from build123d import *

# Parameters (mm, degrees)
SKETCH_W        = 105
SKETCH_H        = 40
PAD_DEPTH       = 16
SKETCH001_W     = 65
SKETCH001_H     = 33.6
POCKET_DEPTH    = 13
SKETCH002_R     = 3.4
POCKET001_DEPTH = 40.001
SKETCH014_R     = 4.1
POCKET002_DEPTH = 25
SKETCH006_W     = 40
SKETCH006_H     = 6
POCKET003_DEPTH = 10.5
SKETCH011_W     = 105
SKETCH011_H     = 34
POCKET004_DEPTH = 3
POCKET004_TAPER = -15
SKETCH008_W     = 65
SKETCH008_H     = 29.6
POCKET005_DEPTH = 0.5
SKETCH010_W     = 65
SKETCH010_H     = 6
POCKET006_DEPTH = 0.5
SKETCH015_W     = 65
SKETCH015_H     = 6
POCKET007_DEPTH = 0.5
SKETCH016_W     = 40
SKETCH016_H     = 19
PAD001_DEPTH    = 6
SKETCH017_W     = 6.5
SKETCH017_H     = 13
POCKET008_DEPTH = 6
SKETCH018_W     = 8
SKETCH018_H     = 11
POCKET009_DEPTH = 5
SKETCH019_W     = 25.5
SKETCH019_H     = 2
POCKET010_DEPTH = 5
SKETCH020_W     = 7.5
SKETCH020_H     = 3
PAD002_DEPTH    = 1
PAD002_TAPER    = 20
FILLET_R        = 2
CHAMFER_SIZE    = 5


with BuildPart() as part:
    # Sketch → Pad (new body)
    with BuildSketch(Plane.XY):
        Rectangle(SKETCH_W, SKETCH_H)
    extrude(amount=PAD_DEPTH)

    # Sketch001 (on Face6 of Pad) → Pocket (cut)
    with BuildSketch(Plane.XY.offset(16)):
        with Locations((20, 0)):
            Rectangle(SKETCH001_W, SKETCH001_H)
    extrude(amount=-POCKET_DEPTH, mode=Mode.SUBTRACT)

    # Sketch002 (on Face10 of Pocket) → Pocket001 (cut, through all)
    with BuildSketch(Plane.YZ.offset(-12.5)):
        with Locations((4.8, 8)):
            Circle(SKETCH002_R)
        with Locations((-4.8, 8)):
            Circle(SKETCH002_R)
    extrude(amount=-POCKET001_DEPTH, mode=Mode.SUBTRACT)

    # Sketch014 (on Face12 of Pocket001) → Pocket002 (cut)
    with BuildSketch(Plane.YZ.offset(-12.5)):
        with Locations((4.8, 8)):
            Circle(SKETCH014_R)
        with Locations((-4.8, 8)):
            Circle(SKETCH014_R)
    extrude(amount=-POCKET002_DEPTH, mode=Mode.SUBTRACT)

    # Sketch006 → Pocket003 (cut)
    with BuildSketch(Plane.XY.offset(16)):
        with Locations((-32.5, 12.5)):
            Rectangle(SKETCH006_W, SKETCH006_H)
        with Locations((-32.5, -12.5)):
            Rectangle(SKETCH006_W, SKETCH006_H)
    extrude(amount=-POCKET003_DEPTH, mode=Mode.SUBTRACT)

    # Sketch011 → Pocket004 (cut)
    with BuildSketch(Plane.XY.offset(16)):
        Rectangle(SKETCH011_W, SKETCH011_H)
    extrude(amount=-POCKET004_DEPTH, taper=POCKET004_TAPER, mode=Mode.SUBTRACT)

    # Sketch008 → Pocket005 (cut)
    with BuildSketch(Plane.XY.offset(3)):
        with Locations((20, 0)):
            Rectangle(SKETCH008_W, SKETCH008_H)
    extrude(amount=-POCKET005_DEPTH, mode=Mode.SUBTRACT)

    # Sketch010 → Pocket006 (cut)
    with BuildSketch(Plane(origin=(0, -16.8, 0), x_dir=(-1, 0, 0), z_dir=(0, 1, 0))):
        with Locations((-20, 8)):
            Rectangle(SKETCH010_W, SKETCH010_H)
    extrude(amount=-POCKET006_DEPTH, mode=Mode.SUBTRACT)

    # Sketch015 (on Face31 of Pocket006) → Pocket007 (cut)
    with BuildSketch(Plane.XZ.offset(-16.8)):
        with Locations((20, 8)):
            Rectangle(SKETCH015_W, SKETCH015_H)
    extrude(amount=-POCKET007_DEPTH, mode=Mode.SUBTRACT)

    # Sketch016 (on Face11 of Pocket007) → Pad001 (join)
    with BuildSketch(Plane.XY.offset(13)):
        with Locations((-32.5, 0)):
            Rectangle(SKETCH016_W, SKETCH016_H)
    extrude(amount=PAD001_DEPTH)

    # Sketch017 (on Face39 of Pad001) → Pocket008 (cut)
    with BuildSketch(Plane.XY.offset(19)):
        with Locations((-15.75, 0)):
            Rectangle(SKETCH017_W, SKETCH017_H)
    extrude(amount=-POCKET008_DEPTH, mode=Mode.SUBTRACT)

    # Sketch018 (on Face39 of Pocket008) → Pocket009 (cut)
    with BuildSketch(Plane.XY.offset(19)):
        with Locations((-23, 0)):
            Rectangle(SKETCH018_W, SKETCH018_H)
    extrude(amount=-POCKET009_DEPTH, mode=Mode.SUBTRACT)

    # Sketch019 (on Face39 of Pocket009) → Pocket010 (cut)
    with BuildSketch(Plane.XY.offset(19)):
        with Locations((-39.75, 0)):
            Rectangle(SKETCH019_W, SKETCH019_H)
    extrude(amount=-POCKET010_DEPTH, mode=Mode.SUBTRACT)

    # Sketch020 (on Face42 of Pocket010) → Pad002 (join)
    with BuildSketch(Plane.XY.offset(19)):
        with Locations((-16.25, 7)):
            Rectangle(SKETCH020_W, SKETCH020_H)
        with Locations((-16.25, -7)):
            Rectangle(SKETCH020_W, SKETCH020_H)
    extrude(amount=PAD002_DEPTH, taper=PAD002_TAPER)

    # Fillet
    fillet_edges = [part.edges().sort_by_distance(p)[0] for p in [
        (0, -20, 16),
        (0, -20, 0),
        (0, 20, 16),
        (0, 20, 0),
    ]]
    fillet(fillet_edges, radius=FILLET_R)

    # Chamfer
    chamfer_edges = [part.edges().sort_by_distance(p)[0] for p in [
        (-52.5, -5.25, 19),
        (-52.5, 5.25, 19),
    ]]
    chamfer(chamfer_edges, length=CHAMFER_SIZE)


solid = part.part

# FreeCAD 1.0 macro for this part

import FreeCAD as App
import Part
import Sketcher


def edges_at(feature, points):
    """Names of the edges that pass closest to the given points."""
    edges = feature.Shape.Edges
    near = lambda p: min(range(len(edges)), key=lambda i: edges[i].distToShape(Part.Vertex(*p))[0])
    return sorted({f"Edge{near(p) + 1}" for p in points})

doc = App.newDocument("Part")
body = doc.addObject("PartDesign::Body", "Body")

# Sketch on XY plane
sketch1 = doc.addObject("Sketcher::SketchObject", "Sketch")
body.addObject(sketch1)
sketch1.AttachmentSupport = (doc.XY_Plane, [""])
sketch1.MapMode = "FlatFace"
sketch1.addGeometry(Part.LineSegment(App.Vector(-52.5, 20, 0), App.Vector(-52.5, -20, 0)), False)
sketch1.addGeometry(Part.LineSegment(App.Vector(-52.5, -20, 0), App.Vector(52.5, -20, 0)), False)
sketch1.addGeometry(Part.LineSegment(App.Vector(52.5, -20, 0), App.Vector(52.5, 20, 0)), False)
sketch1.addGeometry(Part.LineSegment(App.Vector(52.5, 20, 0), App.Vector(-52.5, 20, 0)), False)
sketch1.addConstraint(Sketcher.Constraint("Coincident", 0, 2, 1, 1))
sketch1.addConstraint(Sketcher.Constraint("Coincident", 1, 2, 2, 1))
sketch1.addConstraint(Sketcher.Constraint("Coincident", 2, 2, 3, 1))
sketch1.addConstraint(Sketcher.Constraint("Coincident", 3, 2, 0, 1))
sketch1.addConstraint(Sketcher.Constraint("Vertical", 0))
sketch1.addConstraint(Sketcher.Constraint("Horizontal", 1))
sketch1.addConstraint(Sketcher.Constraint("Vertical", 2))
sketch1.addConstraint(Sketcher.Constraint("Horizontal", 3))
sketch1.addConstraint(Sketcher.Constraint("Symmetric", 0, 2, 2, 2, -1, 1))
sketch1.addConstraint(Sketcher.Constraint("DistanceX", 1, 1, 1, 2, 105.0))
sketch1.addConstraint(Sketcher.Constraint("DistanceY", 0, 2, 0, 1, 40.0))
pad1 = doc.addObject("PartDesign::Pad", "Pad")
body.addObject(pad1)
pad1.Profile = sketch1
pad1.Length = 16

# Sketch on XY plane
sketch2 = doc.addObject("Sketcher::SketchObject", "Sketch001")
body.addObject(sketch2)
sketch2.AttachmentSupport = (doc.XY_Plane, [""])
sketch2.MapMode = "FlatFace"
sketch2.AttachmentOffset = App.Placement(App.Vector(0, 0, 16), App.Rotation())
sketch2.addGeometry(Part.LineSegment(App.Vector(-12.5, 16.8, 0), App.Vector(-12.5, -16.8, 0)), False)
sketch2.addGeometry(Part.LineSegment(App.Vector(-12.5, -16.8, 0), App.Vector(52.5, -16.8, 0)), False)
sketch2.addGeometry(Part.LineSegment(App.Vector(52.5, -16.8, 0), App.Vector(52.5, 16.8, 0)), False)
sketch2.addGeometry(Part.LineSegment(App.Vector(52.5, 16.8, 0), App.Vector(-12.5, 16.8, 0)), False)
sketch2.addConstraint(Sketcher.Constraint("Coincident", 0, 2, 1, 1))
sketch2.addConstraint(Sketcher.Constraint("Coincident", 1, 2, 2, 1))
sketch2.addConstraint(Sketcher.Constraint("Coincident", 2, 2, 3, 1))
sketch2.addConstraint(Sketcher.Constraint("Coincident", 3, 2, 0, 1))
sketch2.addConstraint(Sketcher.Constraint("Vertical", 0))
sketch2.addConstraint(Sketcher.Constraint("Horizontal", 1))
sketch2.addConstraint(Sketcher.Constraint("Vertical", 2))
sketch2.addConstraint(Sketcher.Constraint("Horizontal", 3))
sketch2.addConstraint(Sketcher.Constraint("DistanceX", 1, 1, 1, 2, 65.0))
sketch2.addConstraint(Sketcher.Constraint("DistanceY", 0, 2, 0, 1, 33.6))
sketch2.addConstraint(Sketcher.Constraint("DistanceX", 0, 2, -1, 1, 12.5))
sketch2.addConstraint(Sketcher.Constraint("DistanceY", 0, 2, -1, 1, 16.8))
pocket1 = doc.addObject("PartDesign::Pocket", "Pocket")
body.addObject(pocket1)
pocket1.Profile = sketch2
pocket1.Length = 13

# Sketch on YZ plane
sketch3 = doc.addObject("Sketcher::SketchObject", "Sketch002")
body.addObject(sketch3)
sketch3.AttachmentSupport = (doc.YZ_Plane, [""])
sketch3.MapMode = "FlatFace"
sketch3.AttachmentOffset = App.Placement(App.Vector(0, 0, -12.5), App.Rotation())
sketch3.addGeometry(Part.Circle(App.Vector(4.8, 8, 0), App.Vector(0, 0, 1), 3.4), False)
sketch3.addGeometry(Part.Circle(App.Vector(-4.8, 8, 0), App.Vector(0, 0, 1), 3.4), False)
sketch3.addConstraint(Sketcher.Constraint("Equal", 0, 1))
sketch3.addConstraint(Sketcher.Constraint("Symmetric", 0, 3, 1, 3, -2))
sketch3.addConstraint(Sketcher.Constraint("Diameter", 0, 6.8))
sketch3.addConstraint(Sketcher.Constraint("DistanceY", -1, 1, 0, 3, 8.0))
sketch3.addConstraint(Sketcher.Constraint("DistanceX", -1, 1, 0, 3, 4.8))
pocket2 = doc.addObject("PartDesign::Pocket", "Pocket001")
body.addObject(pocket2)
pocket2.Profile = sketch3
pocket2.Type = "ThroughAll"

# Sketch on YZ plane
sketch4 = doc.addObject("Sketcher::SketchObject", "Sketch003")
body.addObject(sketch4)
sketch4.AttachmentSupport = (doc.YZ_Plane, [""])
sketch4.MapMode = "FlatFace"
sketch4.AttachmentOffset = App.Placement(App.Vector(0, 0, -12.5), App.Rotation())
sketch4.addGeometry(Part.Circle(App.Vector(4.8, 8, 0), App.Vector(0, 0, 1), 4.1), False)
sketch4.addGeometry(Part.Circle(App.Vector(-4.8, 8, 0), App.Vector(0, 0, 1), 4.1), False)
sketch4.addConstraint(Sketcher.Constraint("Equal", 0, 1))
sketch4.addConstraint(Sketcher.Constraint("Symmetric", 0, 3, 1, 3, -2))
sketch4.addConstraint(Sketcher.Constraint("Diameter", 0, 8.2))
sketch4.addConstraint(Sketcher.Constraint("DistanceY", -1, 1, 0, 3, 8.0))
sketch4.addConstraint(Sketcher.Constraint("DistanceX", -1, 1, 0, 3, 4.8))
pocket3 = doc.addObject("PartDesign::Pocket", "Pocket002")
body.addObject(pocket3)
pocket3.Profile = sketch4
pocket3.Length = 25

# Sketch on XY plane
sketch5 = doc.addObject("Sketcher::SketchObject", "Sketch004")
body.addObject(sketch5)
sketch5.AttachmentSupport = (doc.XY_Plane, [""])
sketch5.MapMode = "FlatFace"
sketch5.AttachmentOffset = App.Placement(App.Vector(0, 0, 16), App.Rotation())
sketch5.addGeometry(Part.LineSegment(App.Vector(-52.5, 15.5, 0), App.Vector(-52.5, 9.5, 0)), False)
sketch5.addGeometry(Part.LineSegment(App.Vector(-52.5, 9.5, 0), App.Vector(-12.5, 9.5, 0)), False)
sketch5.addGeometry(Part.LineSegment(App.Vector(-12.5, 9.5, 0), App.Vector(-12.5, 15.5, 0)), False)
sketch5.addGeometry(Part.LineSegment(App.Vector(-12.5, 15.5, 0), App.Vector(-52.5, 15.5, 0)), False)
sketch5.addGeometry(Part.LineSegment(App.Vector(-52.5, -9.5, 0), App.Vector(-52.5, -15.5, 0)), False)
sketch5.addGeometry(Part.LineSegment(App.Vector(-52.5, -15.5, 0), App.Vector(-12.5, -15.5, 0)), False)
sketch5.addGeometry(Part.LineSegment(App.Vector(-12.5, -15.5, 0), App.Vector(-12.5, -9.5, 0)), False)
sketch5.addGeometry(Part.LineSegment(App.Vector(-12.5, -9.5, 0), App.Vector(-52.5, -9.5, 0)), False)
sketch5.addConstraint(Sketcher.Constraint("Coincident", 0, 2, 1, 1))
sketch5.addConstraint(Sketcher.Constraint("Coincident", 1, 2, 2, 1))
sketch5.addConstraint(Sketcher.Constraint("Coincident", 2, 2, 3, 1))
sketch5.addConstraint(Sketcher.Constraint("Coincident", 3, 2, 0, 1))
sketch5.addConstraint(Sketcher.Constraint("Coincident", 4, 2, 5, 1))
sketch5.addConstraint(Sketcher.Constraint("Coincident", 5, 2, 6, 1))
sketch5.addConstraint(Sketcher.Constraint("Coincident", 6, 2, 7, 1))
sketch5.addConstraint(Sketcher.Constraint("Coincident", 7, 2, 4, 1))
sketch5.addConstraint(Sketcher.Constraint("Vertical", 0))
sketch5.addConstraint(Sketcher.Constraint("Horizontal", 1))
sketch5.addConstraint(Sketcher.Constraint("Vertical", 2))
sketch5.addConstraint(Sketcher.Constraint("Horizontal", 3))
sketch5.addConstraint(Sketcher.Constraint("Vertical", 4))
sketch5.addConstraint(Sketcher.Constraint("Horizontal", 5))
sketch5.addConstraint(Sketcher.Constraint("Vertical", 6))
sketch5.addConstraint(Sketcher.Constraint("Horizontal", 7))
sketch5.addConstraint(Sketcher.Constraint("Symmetric", 3, 2, 4, 2, -1))
sketch5.addConstraint(Sketcher.Constraint("Symmetric", 1, 2, 6, 2, -1))
sketch5.addConstraint(Sketcher.Constraint("DistanceX", 1, 1, 1, 2, 40.0))
sketch5.addConstraint(Sketcher.Constraint("DistanceY", 0, 2, 0, 1, 6.0))
sketch5.addConstraint(Sketcher.Constraint("DistanceY", 4, 2, 0, 2, 25.0))
sketch5.addConstraint(Sketcher.Constraint("DistanceX", 0, 2, -1, 1, 52.5))
pocket4 = doc.addObject("PartDesign::Pocket", "Pocket003")
body.addObject(pocket4)
pocket4.Profile = sketch5
pocket4.Length = 10.5

# Sketch on XY plane
sketch6 = doc.addObject("Sketcher::SketchObject", "Sketch005")
body.addObject(sketch6)
sketch6.AttachmentSupport = (doc.XY_Plane, [""])
sketch6.MapMode = "FlatFace"
sketch6.AttachmentOffset = App.Placement(App.Vector(0, 0, 16), App.Rotation())
sketch6.addGeometry(Part.LineSegment(App.Vector(-52.5, 17, 0), App.Vector(-52.5, -17, 0)), False)
sketch6.addGeometry(Part.LineSegment(App.Vector(-52.5, -17, 0), App.Vector(52.5, -17, 0)), False)
sketch6.addGeometry(Part.LineSegment(App.Vector(52.5, -17, 0), App.Vector(52.5, 17, 0)), False)
sketch6.addGeometry(Part.LineSegment(App.Vector(52.5, 17, 0), App.Vector(-52.5, 17, 0)), False)
sketch6.addConstraint(Sketcher.Constraint("Coincident", 0, 2, 1, 1))
sketch6.addConstraint(Sketcher.Constraint("Coincident", 1, 2, 2, 1))
sketch6.addConstraint(Sketcher.Constraint("Coincident", 2, 2, 3, 1))
sketch6.addConstraint(Sketcher.Constraint("Coincident", 3, 2, 0, 1))
sketch6.addConstraint(Sketcher.Constraint("Vertical", 0))
sketch6.addConstraint(Sketcher.Constraint("Horizontal", 1))
sketch6.addConstraint(Sketcher.Constraint("Vertical", 2))
sketch6.addConstraint(Sketcher.Constraint("Horizontal", 3))
sketch6.addConstraint(Sketcher.Constraint("Symmetric", 0, 2, 2, 2, -1, 1))
sketch6.addConstraint(Sketcher.Constraint("DistanceX", 1, 1, 1, 2, 105.0))
sketch6.addConstraint(Sketcher.Constraint("DistanceY", 0, 2, 0, 1, 34.0))
pocket5 = doc.addObject("PartDesign::Pocket", "Pocket004")
body.addObject(pocket5)
pocket5.Profile = sketch6
pocket5.Length = 3
pocket5.TaperAngle = 15

# Sketch on XY plane
sketch7 = doc.addObject("Sketcher::SketchObject", "Sketch006")
body.addObject(sketch7)
sketch7.AttachmentSupport = (doc.XY_Plane, [""])
sketch7.MapMode = "FlatFace"
sketch7.AttachmentOffset = App.Placement(App.Vector(0, 0, 3), App.Rotation())
sketch7.addGeometry(Part.LineSegment(App.Vector(-12.5, 14.8, 0), App.Vector(-12.5, -14.8, 0)), False)
sketch7.addGeometry(Part.LineSegment(App.Vector(-12.5, -14.8, 0), App.Vector(52.5, -14.8, 0)), False)
sketch7.addGeometry(Part.LineSegment(App.Vector(52.5, -14.8, 0), App.Vector(52.5, 14.8, 0)), False)
sketch7.addGeometry(Part.LineSegment(App.Vector(52.5, 14.8, 0), App.Vector(-12.5, 14.8, 0)), False)
sketch7.addConstraint(Sketcher.Constraint("Coincident", 0, 2, 1, 1))
sketch7.addConstraint(Sketcher.Constraint("Coincident", 1, 2, 2, 1))
sketch7.addConstraint(Sketcher.Constraint("Coincident", 2, 2, 3, 1))
sketch7.addConstraint(Sketcher.Constraint("Coincident", 3, 2, 0, 1))
sketch7.addConstraint(Sketcher.Constraint("Vertical", 0))
sketch7.addConstraint(Sketcher.Constraint("Horizontal", 1))
sketch7.addConstraint(Sketcher.Constraint("Vertical", 2))
sketch7.addConstraint(Sketcher.Constraint("Horizontal", 3))
sketch7.addConstraint(Sketcher.Constraint("DistanceX", 1, 1, 1, 2, 65.0))
sketch7.addConstraint(Sketcher.Constraint("DistanceY", 0, 2, 0, 1, 29.6))
sketch7.addConstraint(Sketcher.Constraint("DistanceX", 0, 2, -1, 1, 12.5))
sketch7.addConstraint(Sketcher.Constraint("DistanceY", 0, 2, -1, 1, 14.8))
pocket6 = doc.addObject("PartDesign::Pocket", "Pocket005")
body.addObject(pocket6)
pocket6.Profile = sketch7
pocket6.Length = 0.5

# Sketch on XZ plane
sketch8 = doc.addObject("Sketcher::SketchObject", "Sketch007")
body.addObject(sketch8)
sketch8.AttachmentSupport = (doc.XZ_Plane, [""])
sketch8.MapMode = "FlatFace"
sketch8.AttachmentOffset = App.Placement(App.Vector(0, 0, 16.8), App.Rotation())
sketch8.addGeometry(Part.LineSegment(App.Vector(52.5, 11, 0), App.Vector(52.5, 5, 0)), False)
sketch8.addGeometry(Part.LineSegment(App.Vector(52.5, 5, 0), App.Vector(-12.5, 5, 0)), False)
sketch8.addGeometry(Part.LineSegment(App.Vector(-12.5, 5, 0), App.Vector(-12.5, 11, 0)), False)
sketch8.addGeometry(Part.LineSegment(App.Vector(-12.5, 11, 0), App.Vector(52.5, 11, 0)), False)
sketch8.addConstraint(Sketcher.Constraint("Coincident", 0, 2, 1, 1))
sketch8.addConstraint(Sketcher.Constraint("Coincident", 1, 2, 2, 1))
sketch8.addConstraint(Sketcher.Constraint("Coincident", 2, 2, 3, 1))
sketch8.addConstraint(Sketcher.Constraint("Coincident", 3, 2, 0, 1))
sketch8.addConstraint(Sketcher.Constraint("Vertical", 0))
sketch8.addConstraint(Sketcher.Constraint("Horizontal", 1))
sketch8.addConstraint(Sketcher.Constraint("Vertical", 2))
sketch8.addConstraint(Sketcher.Constraint("Horizontal", 3))
sketch8.addConstraint(Sketcher.Constraint("DistanceX", 1, 2, 1, 1, 65.0))
sketch8.addConstraint(Sketcher.Constraint("DistanceY", 0, 2, 0, 1, 6.0))
sketch8.addConstraint(Sketcher.Constraint("DistanceY", -1, 1, 0, 2, 5.0))
sketch8.addConstraint(Sketcher.Constraint("DistanceX", -1, 1, 0, 2, 52.5))
pocket7 = doc.addObject("PartDesign::Pocket", "Pocket006")
body.addObject(pocket7)
pocket7.Profile = sketch8
pocket7.Length = 0.5
pocket7.Reversed = True

# Sketch on XZ plane
sketch9 = doc.addObject("Sketcher::SketchObject", "Sketch008")
body.addObject(sketch9)
sketch9.AttachmentSupport = (doc.XZ_Plane, [""])
sketch9.MapMode = "FlatFace"
sketch9.AttachmentOffset = App.Placement(App.Vector(0, 0, -16.8), App.Rotation())
sketch9.addGeometry(Part.LineSegment(App.Vector(-12.5, 11, 0), App.Vector(-12.5, 5, 0)), False)
sketch9.addGeometry(Part.LineSegment(App.Vector(-12.5, 5, 0), App.Vector(52.5, 5, 0)), False)
sketch9.addGeometry(Part.LineSegment(App.Vector(52.5, 5, 0), App.Vector(52.5, 11, 0)), False)
sketch9.addGeometry(Part.LineSegment(App.Vector(52.5, 11, 0), App.Vector(-12.5, 11, 0)), False)
sketch9.addConstraint(Sketcher.Constraint("Coincident", 0, 2, 1, 1))
sketch9.addConstraint(Sketcher.Constraint("Coincident", 1, 2, 2, 1))
sketch9.addConstraint(Sketcher.Constraint("Coincident", 2, 2, 3, 1))
sketch9.addConstraint(Sketcher.Constraint("Coincident", 3, 2, 0, 1))
sketch9.addConstraint(Sketcher.Constraint("Vertical", 0))
sketch9.addConstraint(Sketcher.Constraint("Horizontal", 1))
sketch9.addConstraint(Sketcher.Constraint("Vertical", 2))
sketch9.addConstraint(Sketcher.Constraint("Horizontal", 3))
sketch9.addConstraint(Sketcher.Constraint("DistanceX", 1, 1, 1, 2, 65.0))
sketch9.addConstraint(Sketcher.Constraint("DistanceY", 0, 2, 0, 1, 6.0))
sketch9.addConstraint(Sketcher.Constraint("DistanceY", -1, 1, 0, 2, 5.0))
sketch9.addConstraint(Sketcher.Constraint("DistanceX", 0, 2, -1, 1, 12.5))
pocket8 = doc.addObject("PartDesign::Pocket", "Pocket007")
body.addObject(pocket8)
pocket8.Profile = sketch9
pocket8.Length = 0.5

# Sketch on XY plane
sketch10 = doc.addObject("Sketcher::SketchObject", "Sketch009")
body.addObject(sketch10)
sketch10.AttachmentSupport = (doc.XY_Plane, [""])
sketch10.MapMode = "FlatFace"
sketch10.AttachmentOffset = App.Placement(App.Vector(0, 0, 13), App.Rotation())
sketch10.addGeometry(Part.LineSegment(App.Vector(-52.5, 9.5, 0), App.Vector(-52.5, -9.5, 0)), False)
sketch10.addGeometry(Part.LineSegment(App.Vector(-52.5, -9.5, 0), App.Vector(-12.5, -9.5, 0)), False)
sketch10.addGeometry(Part.LineSegment(App.Vector(-12.5, -9.5, 0), App.Vector(-12.5, 9.5, 0)), False)
sketch10.addGeometry(Part.LineSegment(App.Vector(-12.5, 9.5, 0), App.Vector(-52.5, 9.5, 0)), False)
sketch10.addConstraint(Sketcher.Constraint("Coincident", 0, 2, 1, 1))
sketch10.addConstraint(Sketcher.Constraint("Coincident", 1, 2, 2, 1))
sketch10.addConstraint(Sketcher.Constraint("Coincident", 2, 2, 3, 1))
sketch10.addConstraint(Sketcher.Constraint("Coincident", 3, 2, 0, 1))
sketch10.addConstraint(Sketcher.Constraint("Vertical", 0))
sketch10.addConstraint(Sketcher.Constraint("Horizontal", 1))
sketch10.addConstraint(Sketcher.Constraint("Vertical", 2))
sketch10.addConstraint(Sketcher.Constraint("Horizontal", 3))
sketch10.addConstraint(Sketcher.Constraint("DistanceX", 1, 1, 1, 2, 40.0))
sketch10.addConstraint(Sketcher.Constraint("DistanceY", 0, 2, 0, 1, 19.0))
sketch10.addConstraint(Sketcher.Constraint("DistanceX", 0, 2, -1, 1, 52.5))
sketch10.addConstraint(Sketcher.Constraint("DistanceY", 0, 2, -1, 1, 9.5))
pad2 = doc.addObject("PartDesign::Pad", "Pad001")
body.addObject(pad2)
pad2.Profile = sketch10
pad2.Length = 6

# Sketch on XY plane
sketch11 = doc.addObject("Sketcher::SketchObject", "Sketch010")
body.addObject(sketch11)
sketch11.AttachmentSupport = (doc.XY_Plane, [""])
sketch11.MapMode = "FlatFace"
sketch11.AttachmentOffset = App.Placement(App.Vector(0, 0, 19), App.Rotation())
sketch11.addGeometry(Part.LineSegment(App.Vector(-19, 6.5, 0), App.Vector(-19, -6.5, 0)), False)
sketch11.addGeometry(Part.LineSegment(App.Vector(-19, -6.5, 0), App.Vector(-12.5, -6.5, 0)), False)
sketch11.addGeometry(Part.LineSegment(App.Vector(-12.5, -6.5, 0), App.Vector(-12.5, 6.5, 0)), False)
sketch11.addGeometry(Part.LineSegment(App.Vector(-12.5, 6.5, 0), App.Vector(-19, 6.5, 0)), False)
sketch11.addConstraint(Sketcher.Constraint("Coincident", 0, 2, 1, 1))
sketch11.addConstraint(Sketcher.Constraint("Coincident", 1, 2, 2, 1))
sketch11.addConstraint(Sketcher.Constraint("Coincident", 2, 2, 3, 1))
sketch11.addConstraint(Sketcher.Constraint("Coincident", 3, 2, 0, 1))
sketch11.addConstraint(Sketcher.Constraint("Vertical", 0))
sketch11.addConstraint(Sketcher.Constraint("Horizontal", 1))
sketch11.addConstraint(Sketcher.Constraint("Vertical", 2))
sketch11.addConstraint(Sketcher.Constraint("Horizontal", 3))
sketch11.addConstraint(Sketcher.Constraint("DistanceY", 0, 2, 0, 1, 13.0))
sketch11.addConstraint(Sketcher.Constraint("DistanceX", 1, 1, 1, 2, 6.5))
sketch11.addConstraint(Sketcher.Constraint("DistanceX", 0, 2, -1, 1, 19.0))
sketch11.addConstraint(Sketcher.Constraint("DistanceY", 0, 2, -1, 1, 6.5))
pocket9 = doc.addObject("PartDesign::Pocket", "Pocket008")
body.addObject(pocket9)
pocket9.Profile = sketch11
pocket9.Length = 6

# Sketch on XY plane
sketch12 = doc.addObject("Sketcher::SketchObject", "Sketch011")
body.addObject(sketch12)
sketch12.AttachmentSupport = (doc.XY_Plane, [""])
sketch12.MapMode = "FlatFace"
sketch12.AttachmentOffset = App.Placement(App.Vector(0, 0, 19), App.Rotation())
sketch12.addGeometry(Part.LineSegment(App.Vector(-27, 5.5, 0), App.Vector(-27, -5.5, 0)), False)
sketch12.addGeometry(Part.LineSegment(App.Vector(-27, -5.5, 0), App.Vector(-19, -5.5, 0)), False)
sketch12.addGeometry(Part.LineSegment(App.Vector(-19, -5.5, 0), App.Vector(-19, 5.5, 0)), False)
sketch12.addGeometry(Part.LineSegment(App.Vector(-19, 5.5, 0), App.Vector(-27, 5.5, 0)), False)
sketch12.addConstraint(Sketcher.Constraint("Coincident", 0, 2, 1, 1))
sketch12.addConstraint(Sketcher.Constraint("Coincident", 1, 2, 2, 1))
sketch12.addConstraint(Sketcher.Constraint("Coincident", 2, 2, 3, 1))
sketch12.addConstraint(Sketcher.Constraint("Coincident", 3, 2, 0, 1))
sketch12.addConstraint(Sketcher.Constraint("Vertical", 0))
sketch12.addConstraint(Sketcher.Constraint("Horizontal", 1))
sketch12.addConstraint(Sketcher.Constraint("Vertical", 2))
sketch12.addConstraint(Sketcher.Constraint("Horizontal", 3))
sketch12.addConstraint(Sketcher.Constraint("DistanceX", 1, 1, 1, 2, 8.0))
sketch12.addConstraint(Sketcher.Constraint("DistanceY", 0, 2, 0, 1, 11.0))
sketch12.addConstraint(Sketcher.Constraint("DistanceX", 0, 2, -1, 1, 27.0))
sketch12.addConstraint(Sketcher.Constraint("DistanceY", 0, 2, -1, 1, 5.5))
pocket10 = doc.addObject("PartDesign::Pocket", "Pocket009")
body.addObject(pocket10)
pocket10.Profile = sketch12
pocket10.Length = 5

# Sketch on XY plane
sketch13 = doc.addObject("Sketcher::SketchObject", "Sketch012")
body.addObject(sketch13)
sketch13.AttachmentSupport = (doc.XY_Plane, [""])
sketch13.MapMode = "FlatFace"
sketch13.AttachmentOffset = App.Placement(App.Vector(0, 0, 19), App.Rotation())
sketch13.addGeometry(Part.LineSegment(App.Vector(-52.5, 1, 0), App.Vector(-52.5, -1, 0)), False)
sketch13.addGeometry(Part.LineSegment(App.Vector(-52.5, -1, 0), App.Vector(-27, -1, 0)), False)
sketch13.addGeometry(Part.LineSegment(App.Vector(-27, -1, 0), App.Vector(-27, 1, 0)), False)
sketch13.addGeometry(Part.LineSegment(App.Vector(-27, 1, 0), App.Vector(-52.5, 1, 0)), False)
sketch13.addConstraint(Sketcher.Constraint("Coincident", 0, 2, 1, 1))
sketch13.addConstraint(Sketcher.Constraint("Coincident", 1, 2, 2, 1))
sketch13.addConstraint(Sketcher.Constraint("Coincident", 2, 2, 3, 1))
sketch13.addConstraint(Sketcher.Constraint("Coincident", 3, 2, 0, 1))
sketch13.addConstraint(Sketcher.Constraint("Vertical", 0))
sketch13.addConstraint(Sketcher.Constraint("Horizontal", 1))
sketch13.addConstraint(Sketcher.Constraint("Vertical", 2))
sketch13.addConstraint(Sketcher.Constraint("Horizontal", 3))
sketch13.addConstraint(Sketcher.Constraint("DistanceY", 0, 2, 0, 1, 2.0))
sketch13.addConstraint(Sketcher.Constraint("DistanceX", 1, 1, 1, 2, 25.5))
sketch13.addConstraint(Sketcher.Constraint("DistanceY", 0, 2, -1, 1, 1.0))
sketch13.addConstraint(Sketcher.Constraint("DistanceX", 1, 2, -1, 1, 27.0))
pocket11 = doc.addObject("PartDesign::Pocket", "Pocket010")
body.addObject(pocket11)
pocket11.Profile = sketch13
pocket11.Length = 5

# Sketch on XY plane
sketch14 = doc.addObject("Sketcher::SketchObject", "Sketch013")
body.addObject(sketch14)
sketch14.AttachmentSupport = (doc.XY_Plane, [""])
sketch14.MapMode = "FlatFace"
sketch14.AttachmentOffset = App.Placement(App.Vector(0, 0, 19), App.Rotation())
sketch14.addGeometry(Part.LineSegment(App.Vector(-20, 8.5, 0), App.Vector(-20, 5.5, 0)), False)
sketch14.addGeometry(Part.LineSegment(App.Vector(-20, 5.5, 0), App.Vector(-12.5, 5.5, 0)), False)
sketch14.addGeometry(Part.LineSegment(App.Vector(-12.5, 5.5, 0), App.Vector(-12.5, 8.5, 0)), False)
sketch14.addGeometry(Part.LineSegment(App.Vector(-12.5, 8.5, 0), App.Vector(-20, 8.5, 0)), False)
sketch14.addGeometry(Part.LineSegment(App.Vector(-20, -5.5, 0), App.Vector(-20, -8.5, 0)), False)
sketch14.addGeometry(Part.LineSegment(App.Vector(-20, -8.5, 0), App.Vector(-12.5, -8.5, 0)), False)
sketch14.addGeometry(Part.LineSegment(App.Vector(-12.5, -8.5, 0), App.Vector(-12.5, -5.5, 0)), False)
sketch14.addGeometry(Part.LineSegment(App.Vector(-12.5, -5.5, 0), App.Vector(-20, -5.5, 0)), False)
sketch14.addConstraint(Sketcher.Constraint("Coincident", 0, 2, 1, 1))
sketch14.addConstraint(Sketcher.Constraint("Coincident", 1, 2, 2, 1))
sketch14.addConstraint(Sketcher.Constraint("Coincident", 2, 2, 3, 1))
sketch14.addConstraint(Sketcher.Constraint("Coincident", 3, 2, 0, 1))
sketch14.addConstraint(Sketcher.Constraint("Coincident", 4, 2, 5, 1))
sketch14.addConstraint(Sketcher.Constraint("Coincident", 5, 2, 6, 1))
sketch14.addConstraint(Sketcher.Constraint("Coincident", 6, 2, 7, 1))
sketch14.addConstraint(Sketcher.Constraint("Coincident", 7, 2, 4, 1))
sketch14.addConstraint(Sketcher.Constraint("Vertical", 0))
sketch14.addConstraint(Sketcher.Constraint("Horizontal", 1))
sketch14.addConstraint(Sketcher.Constraint("Vertical", 2))
sketch14.addConstraint(Sketcher.Constraint("Horizontal", 3))
sketch14.addConstraint(Sketcher.Constraint("Vertical", 4))
sketch14.addConstraint(Sketcher.Constraint("Horizontal", 5))
sketch14.addConstraint(Sketcher.Constraint("Vertical", 6))
sketch14.addConstraint(Sketcher.Constraint("Horizontal", 7))
sketch14.addConstraint(Sketcher.Constraint("Symmetric", 3, 2, 4, 2, -1))
sketch14.addConstraint(Sketcher.Constraint("Symmetric", 1, 2, 6, 2, -1))
sketch14.addConstraint(Sketcher.Constraint("DistanceY", 0, 2, 0, 1, 3.0))
sketch14.addConstraint(Sketcher.Constraint("DistanceX", 1, 1, 1, 2, 7.5))
sketch14.addConstraint(Sketcher.Constraint("DistanceX", 0, 2, -1, 1, 20.0))
sketch14.addConstraint(Sketcher.Constraint("DistanceY", 4, 2, 0, 2, 14.0))
pad3 = doc.addObject("PartDesign::Pad", "Pad002")
body.addObject(pad3)
pad3.Profile = sketch14
pad3.Length = 1
pad3.TaperAngle = -20
doc.recompute()

fillet = doc.addObject("PartDesign::Fillet", "Fillet")
body.addObject(fillet)
fillet.Base = (pad3, edges_at(pad3, [
    (0, -20, 16),
    (0, -20, 0),
    (0, 20, 16),
    (0, 20, 0),
]))
fillet.Radius = 2
doc.recompute()

chamfer = doc.addObject("PartDesign::Chamfer", "Chamfer")
body.addObject(chamfer)
chamfer.Base = (fillet, edges_at(fillet, [(-52.5, -5.25, 19), (-52.5, 5.25, 19)]))
chamfer.Size = 5

doc.recompute()
